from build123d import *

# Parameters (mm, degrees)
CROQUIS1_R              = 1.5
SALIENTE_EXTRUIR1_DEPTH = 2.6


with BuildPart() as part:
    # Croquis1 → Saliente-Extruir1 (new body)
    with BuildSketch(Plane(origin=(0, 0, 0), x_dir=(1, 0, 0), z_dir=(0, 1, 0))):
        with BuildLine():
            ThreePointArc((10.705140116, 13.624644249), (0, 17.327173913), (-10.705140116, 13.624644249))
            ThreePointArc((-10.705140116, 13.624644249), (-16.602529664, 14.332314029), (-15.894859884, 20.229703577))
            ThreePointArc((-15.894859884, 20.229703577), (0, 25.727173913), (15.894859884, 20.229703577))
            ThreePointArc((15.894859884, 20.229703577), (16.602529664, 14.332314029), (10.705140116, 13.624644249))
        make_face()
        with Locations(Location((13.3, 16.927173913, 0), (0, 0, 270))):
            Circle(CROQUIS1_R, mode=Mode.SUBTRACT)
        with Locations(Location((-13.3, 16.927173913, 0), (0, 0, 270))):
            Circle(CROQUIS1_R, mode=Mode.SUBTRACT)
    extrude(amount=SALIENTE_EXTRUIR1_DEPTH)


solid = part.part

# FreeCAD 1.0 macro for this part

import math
import FreeCAD as App
import Part
import Sketcher
from FreeCAD import Vector

doc = App.newDocument("Part")
body = doc.addObject("PartDesign::Body", "Body")

sketch1 = doc.addObject("Sketcher::SketchObject", "Sketch")
body.addObject(sketch1)
sketch1.AttachmentSupport = (doc.XZ_Plane, [""])
sketch1.MapMode = "FlatFace"
sketch1.addGeometry(Part.ArcOfCircle(Part.Circle(Vector(0, 0, 0), Vector(0, 0, 1), 17.3), math.radians(-128), math.radians(-52)), False)
sketch1.addGeometry(Part.ArcOfCircle(Part.Circle(Vector(13.3, -16.9, 0), Vector(0, 0, 1), 4.2), math.radians(-52), math.radians(128)), False)
sketch1.addGeometry(Part.ArcOfCircle(Part.Circle(Vector(0, 0, 0), Vector(0, 0, 1), 25.7), math.radians(-128), math.radians(-52)), False)
sketch1.addGeometry(Part.ArcOfCircle(Part.Circle(Vector(-13.3, -16.9, 0), Vector(0, 0, 1), 4.2), math.radians(52), math.radians(232)), False)
sketch1.addGeometry(Part.Circle(Vector(13.3, -16.9, 0), Vector(0, 0, 1), 1.5), False)
sketch1.addGeometry(Part.Circle(Vector(-13.3, -16.9, 0), Vector(0, 0, 1), 1.5), False)
sketch1.addConstraint(Sketcher.Constraint("Tangent", 0, 2, 1, 2))
sketch1.addConstraint(Sketcher.Constraint("Tangent", 1, 1, 2, 2))
sketch1.addConstraint(Sketcher.Constraint("Tangent", 2, 1, 3, 2))
sketch1.addConstraint(Sketcher.Constraint("Tangent", 3, 1, 0, 1))
sketch1.addConstraint(Sketcher.Constraint("Coincident", 0, 3, -1, 1))
sketch1.addConstraint(Sketcher.Constraint("Coincident", 2, 3, -1, 1))
sketch1.addConstraint(Sketcher.Constraint("Coincident", 4, 3, 1, 3))
sketch1.addConstraint(Sketcher.Constraint("Coincident", 5, 3, 3, 3))
sketch1.addConstraint(Sketcher.Constraint("Equal", 4, 5))
sketch1.addConstraint(Sketcher.Constraint("Horizontal", 1, 3, 3, 3))
sketch1.addConstraint(Sketcher.Constraint("Diameter", 4, 3.0))
sketch1.addConstraint(Sketcher.Constraint("Radius", 1, 4.2))
sketch1.addConstraint(Sketcher.Constraint("DistanceX", -1, 1, 1, 3, 13.3))
sketch1.addConstraint(Sketcher.Constraint("Radius", 0, 17.327174))
pad1 = doc.addObject("PartDesign::Pad", "Pad")
body.addObject(pad1)
pad1.Profile = sketch1
pad1.Length = 2.6
pad1.Reversed = True

doc.recompute()
